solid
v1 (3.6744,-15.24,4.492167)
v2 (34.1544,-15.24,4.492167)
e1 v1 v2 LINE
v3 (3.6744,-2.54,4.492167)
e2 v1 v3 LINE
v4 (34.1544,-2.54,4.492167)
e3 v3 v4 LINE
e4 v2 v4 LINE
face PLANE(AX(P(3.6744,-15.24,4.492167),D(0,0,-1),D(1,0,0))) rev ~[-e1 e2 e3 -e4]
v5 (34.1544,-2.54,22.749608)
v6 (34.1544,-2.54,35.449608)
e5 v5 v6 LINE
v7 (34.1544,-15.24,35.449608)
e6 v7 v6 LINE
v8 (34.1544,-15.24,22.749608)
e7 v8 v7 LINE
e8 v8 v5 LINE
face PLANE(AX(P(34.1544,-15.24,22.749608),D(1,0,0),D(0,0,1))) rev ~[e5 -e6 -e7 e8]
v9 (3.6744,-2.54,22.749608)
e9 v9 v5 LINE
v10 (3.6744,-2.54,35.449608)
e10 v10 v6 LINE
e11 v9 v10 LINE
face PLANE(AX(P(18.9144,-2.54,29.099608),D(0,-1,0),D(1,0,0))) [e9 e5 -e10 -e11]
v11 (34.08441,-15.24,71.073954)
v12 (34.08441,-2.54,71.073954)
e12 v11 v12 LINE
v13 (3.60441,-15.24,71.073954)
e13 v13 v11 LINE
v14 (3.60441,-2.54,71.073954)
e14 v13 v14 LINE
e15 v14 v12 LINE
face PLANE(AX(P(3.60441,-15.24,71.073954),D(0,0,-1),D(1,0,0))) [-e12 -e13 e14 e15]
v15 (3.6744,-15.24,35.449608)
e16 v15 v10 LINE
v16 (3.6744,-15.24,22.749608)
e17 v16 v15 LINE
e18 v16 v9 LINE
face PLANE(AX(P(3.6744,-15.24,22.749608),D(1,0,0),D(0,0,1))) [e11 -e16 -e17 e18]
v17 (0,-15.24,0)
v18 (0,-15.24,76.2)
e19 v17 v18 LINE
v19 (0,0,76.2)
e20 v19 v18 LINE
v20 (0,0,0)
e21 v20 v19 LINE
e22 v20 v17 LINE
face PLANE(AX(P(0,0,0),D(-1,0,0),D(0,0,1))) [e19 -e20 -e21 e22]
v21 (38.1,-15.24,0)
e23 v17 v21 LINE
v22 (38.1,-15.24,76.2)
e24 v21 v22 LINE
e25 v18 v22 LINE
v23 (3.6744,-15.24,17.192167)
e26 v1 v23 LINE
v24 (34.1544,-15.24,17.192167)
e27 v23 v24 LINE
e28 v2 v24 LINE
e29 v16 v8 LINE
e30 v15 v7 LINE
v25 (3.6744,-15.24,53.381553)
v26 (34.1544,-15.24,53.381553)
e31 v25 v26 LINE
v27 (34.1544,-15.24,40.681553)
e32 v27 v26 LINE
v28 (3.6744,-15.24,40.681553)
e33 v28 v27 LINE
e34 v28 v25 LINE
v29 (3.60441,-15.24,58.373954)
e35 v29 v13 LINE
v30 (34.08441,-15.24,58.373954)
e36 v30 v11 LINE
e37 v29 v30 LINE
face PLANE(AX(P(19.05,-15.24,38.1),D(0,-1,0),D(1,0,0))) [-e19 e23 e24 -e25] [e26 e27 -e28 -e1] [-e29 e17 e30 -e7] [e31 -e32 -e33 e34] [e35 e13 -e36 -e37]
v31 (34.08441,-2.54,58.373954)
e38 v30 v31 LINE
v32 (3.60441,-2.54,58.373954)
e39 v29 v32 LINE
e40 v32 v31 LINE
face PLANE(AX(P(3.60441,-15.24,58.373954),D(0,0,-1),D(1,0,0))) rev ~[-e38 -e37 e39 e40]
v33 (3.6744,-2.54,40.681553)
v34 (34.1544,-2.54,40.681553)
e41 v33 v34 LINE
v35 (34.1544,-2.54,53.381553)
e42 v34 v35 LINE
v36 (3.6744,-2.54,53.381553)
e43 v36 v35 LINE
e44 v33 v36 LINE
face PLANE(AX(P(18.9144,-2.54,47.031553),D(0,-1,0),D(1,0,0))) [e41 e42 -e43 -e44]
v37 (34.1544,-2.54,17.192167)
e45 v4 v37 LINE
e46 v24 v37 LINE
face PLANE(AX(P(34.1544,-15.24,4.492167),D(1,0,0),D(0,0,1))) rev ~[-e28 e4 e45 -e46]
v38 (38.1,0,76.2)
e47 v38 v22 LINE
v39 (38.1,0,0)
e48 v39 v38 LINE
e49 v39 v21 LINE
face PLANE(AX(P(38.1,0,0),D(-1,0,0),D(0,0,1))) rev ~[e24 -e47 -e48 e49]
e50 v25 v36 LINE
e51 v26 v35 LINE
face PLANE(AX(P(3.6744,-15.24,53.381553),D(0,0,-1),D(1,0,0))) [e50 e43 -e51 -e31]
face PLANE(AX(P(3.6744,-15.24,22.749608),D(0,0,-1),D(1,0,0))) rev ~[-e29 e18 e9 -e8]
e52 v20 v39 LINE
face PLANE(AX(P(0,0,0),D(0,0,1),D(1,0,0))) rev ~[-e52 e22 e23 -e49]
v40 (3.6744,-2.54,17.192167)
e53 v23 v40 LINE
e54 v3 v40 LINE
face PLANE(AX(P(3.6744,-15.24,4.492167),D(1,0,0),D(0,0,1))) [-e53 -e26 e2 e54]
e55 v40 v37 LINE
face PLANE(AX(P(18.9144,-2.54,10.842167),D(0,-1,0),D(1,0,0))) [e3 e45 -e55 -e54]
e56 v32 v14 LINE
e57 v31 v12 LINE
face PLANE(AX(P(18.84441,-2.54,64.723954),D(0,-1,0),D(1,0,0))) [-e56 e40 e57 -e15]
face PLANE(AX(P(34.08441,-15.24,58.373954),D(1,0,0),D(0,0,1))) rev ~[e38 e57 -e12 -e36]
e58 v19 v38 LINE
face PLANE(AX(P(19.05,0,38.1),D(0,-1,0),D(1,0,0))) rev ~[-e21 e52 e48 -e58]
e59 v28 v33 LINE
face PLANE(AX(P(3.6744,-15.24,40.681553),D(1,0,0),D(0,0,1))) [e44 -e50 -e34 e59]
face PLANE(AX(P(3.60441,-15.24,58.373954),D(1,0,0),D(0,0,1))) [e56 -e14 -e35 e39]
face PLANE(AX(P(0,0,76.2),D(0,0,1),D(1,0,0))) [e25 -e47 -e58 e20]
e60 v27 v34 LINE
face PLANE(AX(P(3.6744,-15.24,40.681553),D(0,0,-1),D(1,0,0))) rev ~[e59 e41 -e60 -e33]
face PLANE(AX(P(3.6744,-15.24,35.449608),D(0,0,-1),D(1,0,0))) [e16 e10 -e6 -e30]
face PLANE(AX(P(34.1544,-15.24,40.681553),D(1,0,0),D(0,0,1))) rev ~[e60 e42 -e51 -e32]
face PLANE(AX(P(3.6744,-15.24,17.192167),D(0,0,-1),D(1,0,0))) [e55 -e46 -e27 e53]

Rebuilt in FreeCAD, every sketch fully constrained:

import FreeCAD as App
import Part
import Sketcher
from FreeCAD import Vector
Q = App.Units.Quantity

doc = App.newDocument("Part")
body = doc.addObject("PartDesign::Body", "Body")

# Sketch on XZ plane
sketch1 = body.newObject("Sketcher::SketchObject", "Sketch")
sketch1.AttachmentSupport = (doc.getObject("XZ_Plane"), [""])
sketch1.MapMode = "FlatFace"
sketch1.addGeometry([
    Part.LineSegment(Vector(0, 76.2, 0), Vector(0, 0, 0)),
    Part.LineSegment(Vector(0, 0, 0), Vector(38.1, 0, 0)),
    Part.LineSegment(Vector(38.1, 0, 0), Vector(38.1, 76.2, 0)),
    Part.LineSegment(Vector(38.1, 76.2, 0), Vector(0, 76.2, 0)),
], False)
sketch1.addConstraint([
    Sketcher.Constraint("Coincident", 0, 2, 1, 1),
    Sketcher.Constraint("Coincident", 1, 2, 2, 1),
    Sketcher.Constraint("Coincident", 2, 2, 3, 1),
    Sketcher.Constraint("Coincident", 3, 2, 0, 1),
    Sketcher.Constraint("Vertical", 0),
    Sketcher.Constraint("Horizontal", 1),
    Sketcher.Constraint("Vertical", 2),
    Sketcher.Constraint("Horizontal", 3),
    Sketcher.Constraint("Coincident", 0, 2, -1, 1),
    Sketcher.Constraint("DistanceY", 0, 2, 0, 1, Q("3 in")),
    Sketcher.Constraint("DistanceX", 1, 1, 1, 2, Q("1.5 in")),
])
pad1 = body.newObject("PartDesign::Pad", "Pad")
pad1.Profile = sketch1
pad1.Length = Q("0.6 in")

# Sketch on XZ plane
sketch2 = body.newObject("Sketcher::SketchObject", "Sketch001")
sketch2.AttachmentSupport = (doc.getObject("XZ_Plane"), [""])
sketch2.MapMode = "FlatFace"
sketch2.AttachmentOffset = App.Placement(Vector(0, 0, 0.6 * 25.4), App.Rotation())
sketch2.addGeometry([
    Part.LineSegment(Vector(3.6744, 53.381553, 0), Vector(3.6744, 40.681553, 0)),  # 0
    Part.LineSegment(Vector(3.6744, 40.681553, 0), Vector(34.1544, 40.681553, 0)),  # 1
    Part.LineSegment(Vector(34.1544, 40.681553, 0), Vector(34.1544, 53.381553, 0)),  # 2
    Part.LineSegment(Vector(34.1544, 53.381553, 0), Vector(3.6744, 53.381553, 0)),  # 3
    Part.LineSegment(Vector(3.6744, 35.449608, 0), Vector(3.6744, 22.749608, 0)),  # 4
    Part.LineSegment(Vector(3.6744, 22.749608, 0), Vector(34.1544, 22.749608, 0)),  # 5
    Part.LineSegment(Vector(34.1544, 22.749608, 0), Vector(34.1544, 35.449608, 0)),  # 6
    Part.LineSegment(Vector(34.1544, 35.449608, 0), Vector(3.6744, 35.449608, 0)),  # 7
    Part.LineSegment(Vector(3.6744, 17.192167, 0), Vector(3.6744, 4.492167, 0)),  # 8
    Part.LineSegment(Vector(3.6744, 4.492167, 0), Vector(34.1544, 4.492167, 0)),  # 9
    Part.LineSegment(Vector(34.1544, 4.492167, 0), Vector(34.1544, 17.192167, 0)),  # 10
    Part.LineSegment(Vector(34.1544, 17.192167, 0), Vector(3.6744, 17.192167, 0)),  # 11
    Part.LineSegment(Vector(3.60441, 71.073954, 0), Vector(3.60441, 58.373954, 0)),  # 12
    Part.LineSegment(Vector(3.60441, 58.373954, 0), Vector(34.08441, 58.373954, 0)),  # 13
    Part.LineSegment(Vector(34.08441, 58.373954, 0), Vector(34.08441, 71.073954, 0)),  # 14
    Part.LineSegment(Vector(34.08441, 71.073954, 0), Vector(3.60441, 71.073954, 0)),  # 15
], False)
sketch2.addConstraint([
    Sketcher.Constraint("Coincident", 0, 2, 1, 1),
    Sketcher.Constraint("Coincident", 1, 2, 2, 1),
    Sketcher.Constraint("Coincident", 2, 2, 3, 1),
    Sketcher.Constraint("Coincident", 3, 2, 0, 1),
    Sketcher.Constraint("Coincident", 4, 2, 5, 1),
    Sketcher.Constraint("Coincident", 5, 2, 6, 1),
    Sketcher.Constraint("Coincident", 6, 2, 7, 1),
    Sketcher.Constraint("Coincident", 7, 2, 4, 1),
    Sketcher.Constraint("Coincident", 8, 2, 9, 1),
    Sketcher.Constraint("Coincident", 9, 2, 10, 1),
    Sketcher.Constraint("Coincident", 10, 2, 11, 1),
    Sketcher.Constraint("Coincident", 11, 2, 8, 1),
    Sketcher.Constraint("Coincident", 12, 2, 13, 1),
    Sketcher.Constraint("Coincident", 13, 2, 14, 1),
    Sketcher.Constraint("Coincident", 14, 2, 15, 1),
    Sketcher.Constraint("Coincident", 15, 2, 12, 1),
    Sketcher.Constraint("Vertical", 0),
    Sketcher.Constraint("Horizontal", 1),
    Sketcher.Constraint("Vertical", 2),
    Sketcher.Constraint("Horizontal", 3),
    Sketcher.Constraint("Vertical", 4),
    Sketcher.Constraint("Horizontal", 5),
    Sketcher.Constraint("Vertical", 6),
    Sketcher.Constraint("Horizontal", 7),
    Sketcher.Constraint("Vertical", 8),
    Sketcher.Constraint("Horizontal", 9),
    Sketcher.Constraint("Vertical", 10),
    Sketcher.Constraint("Horizontal", 11),
    Sketcher.Constraint("Vertical", 12),
    Sketcher.Constraint("Horizontal", 13),
    Sketcher.Constraint("Vertical", 14),
    Sketcher.Constraint("Horizontal", 15),
    Sketcher.Constraint("Vertical", 3, 2, 4, 2),
    Sketcher.Constraint("Vertical", 2, 2, 5, 2),
    Sketcher.Constraint("Vertical", 7, 2, 8, 2),
    Sketcher.Constraint("Vertical", 6, 2, 9, 2),
    Sketcher.Constraint("Equal", 11, 13),
    Sketcher.Constraint("Equal", 2, 4),
    Sketcher.Constraint("Equal", 6, 8),
    Sketcher.Constraint("Equal", 10, 12),
    Sketcher.Constraint("DistanceX", 1, 1, 1, 2, Q("1.2 in")),
    Sketcher.Constraint("DistanceY", 0, 2, 0, 1, Q("0.5 in")),
    Sketcher.Constraint("DistanceX", -1, 1, 0, 2, Q("3.6744 mm")),
    Sketcher.Constraint("DistanceY", 3, 2, 12, 2, Q("4.992401 mm")),
    Sketcher.Constraint("DistanceX", -1, 1, 12, 2, Q("3.60441 mm")),
    Sketcher.Constraint("DistanceY", 8, 2, 4, 2, Q("18.257441 mm")),
    Sketcher.Constraint("DistanceY", -1, 1, 0, 2, Q("40.681553 mm")),
    Sketcher.Constraint("DistanceY", -1, 1, 4, 2, Q("22.749608 mm")),
])
pocket1 = body.newObject("PartDesign::Pocket", "Pocket")
pocket1.Profile = sketch2
pocket1.Length = Q("0.5 in")

doc.recompute()
